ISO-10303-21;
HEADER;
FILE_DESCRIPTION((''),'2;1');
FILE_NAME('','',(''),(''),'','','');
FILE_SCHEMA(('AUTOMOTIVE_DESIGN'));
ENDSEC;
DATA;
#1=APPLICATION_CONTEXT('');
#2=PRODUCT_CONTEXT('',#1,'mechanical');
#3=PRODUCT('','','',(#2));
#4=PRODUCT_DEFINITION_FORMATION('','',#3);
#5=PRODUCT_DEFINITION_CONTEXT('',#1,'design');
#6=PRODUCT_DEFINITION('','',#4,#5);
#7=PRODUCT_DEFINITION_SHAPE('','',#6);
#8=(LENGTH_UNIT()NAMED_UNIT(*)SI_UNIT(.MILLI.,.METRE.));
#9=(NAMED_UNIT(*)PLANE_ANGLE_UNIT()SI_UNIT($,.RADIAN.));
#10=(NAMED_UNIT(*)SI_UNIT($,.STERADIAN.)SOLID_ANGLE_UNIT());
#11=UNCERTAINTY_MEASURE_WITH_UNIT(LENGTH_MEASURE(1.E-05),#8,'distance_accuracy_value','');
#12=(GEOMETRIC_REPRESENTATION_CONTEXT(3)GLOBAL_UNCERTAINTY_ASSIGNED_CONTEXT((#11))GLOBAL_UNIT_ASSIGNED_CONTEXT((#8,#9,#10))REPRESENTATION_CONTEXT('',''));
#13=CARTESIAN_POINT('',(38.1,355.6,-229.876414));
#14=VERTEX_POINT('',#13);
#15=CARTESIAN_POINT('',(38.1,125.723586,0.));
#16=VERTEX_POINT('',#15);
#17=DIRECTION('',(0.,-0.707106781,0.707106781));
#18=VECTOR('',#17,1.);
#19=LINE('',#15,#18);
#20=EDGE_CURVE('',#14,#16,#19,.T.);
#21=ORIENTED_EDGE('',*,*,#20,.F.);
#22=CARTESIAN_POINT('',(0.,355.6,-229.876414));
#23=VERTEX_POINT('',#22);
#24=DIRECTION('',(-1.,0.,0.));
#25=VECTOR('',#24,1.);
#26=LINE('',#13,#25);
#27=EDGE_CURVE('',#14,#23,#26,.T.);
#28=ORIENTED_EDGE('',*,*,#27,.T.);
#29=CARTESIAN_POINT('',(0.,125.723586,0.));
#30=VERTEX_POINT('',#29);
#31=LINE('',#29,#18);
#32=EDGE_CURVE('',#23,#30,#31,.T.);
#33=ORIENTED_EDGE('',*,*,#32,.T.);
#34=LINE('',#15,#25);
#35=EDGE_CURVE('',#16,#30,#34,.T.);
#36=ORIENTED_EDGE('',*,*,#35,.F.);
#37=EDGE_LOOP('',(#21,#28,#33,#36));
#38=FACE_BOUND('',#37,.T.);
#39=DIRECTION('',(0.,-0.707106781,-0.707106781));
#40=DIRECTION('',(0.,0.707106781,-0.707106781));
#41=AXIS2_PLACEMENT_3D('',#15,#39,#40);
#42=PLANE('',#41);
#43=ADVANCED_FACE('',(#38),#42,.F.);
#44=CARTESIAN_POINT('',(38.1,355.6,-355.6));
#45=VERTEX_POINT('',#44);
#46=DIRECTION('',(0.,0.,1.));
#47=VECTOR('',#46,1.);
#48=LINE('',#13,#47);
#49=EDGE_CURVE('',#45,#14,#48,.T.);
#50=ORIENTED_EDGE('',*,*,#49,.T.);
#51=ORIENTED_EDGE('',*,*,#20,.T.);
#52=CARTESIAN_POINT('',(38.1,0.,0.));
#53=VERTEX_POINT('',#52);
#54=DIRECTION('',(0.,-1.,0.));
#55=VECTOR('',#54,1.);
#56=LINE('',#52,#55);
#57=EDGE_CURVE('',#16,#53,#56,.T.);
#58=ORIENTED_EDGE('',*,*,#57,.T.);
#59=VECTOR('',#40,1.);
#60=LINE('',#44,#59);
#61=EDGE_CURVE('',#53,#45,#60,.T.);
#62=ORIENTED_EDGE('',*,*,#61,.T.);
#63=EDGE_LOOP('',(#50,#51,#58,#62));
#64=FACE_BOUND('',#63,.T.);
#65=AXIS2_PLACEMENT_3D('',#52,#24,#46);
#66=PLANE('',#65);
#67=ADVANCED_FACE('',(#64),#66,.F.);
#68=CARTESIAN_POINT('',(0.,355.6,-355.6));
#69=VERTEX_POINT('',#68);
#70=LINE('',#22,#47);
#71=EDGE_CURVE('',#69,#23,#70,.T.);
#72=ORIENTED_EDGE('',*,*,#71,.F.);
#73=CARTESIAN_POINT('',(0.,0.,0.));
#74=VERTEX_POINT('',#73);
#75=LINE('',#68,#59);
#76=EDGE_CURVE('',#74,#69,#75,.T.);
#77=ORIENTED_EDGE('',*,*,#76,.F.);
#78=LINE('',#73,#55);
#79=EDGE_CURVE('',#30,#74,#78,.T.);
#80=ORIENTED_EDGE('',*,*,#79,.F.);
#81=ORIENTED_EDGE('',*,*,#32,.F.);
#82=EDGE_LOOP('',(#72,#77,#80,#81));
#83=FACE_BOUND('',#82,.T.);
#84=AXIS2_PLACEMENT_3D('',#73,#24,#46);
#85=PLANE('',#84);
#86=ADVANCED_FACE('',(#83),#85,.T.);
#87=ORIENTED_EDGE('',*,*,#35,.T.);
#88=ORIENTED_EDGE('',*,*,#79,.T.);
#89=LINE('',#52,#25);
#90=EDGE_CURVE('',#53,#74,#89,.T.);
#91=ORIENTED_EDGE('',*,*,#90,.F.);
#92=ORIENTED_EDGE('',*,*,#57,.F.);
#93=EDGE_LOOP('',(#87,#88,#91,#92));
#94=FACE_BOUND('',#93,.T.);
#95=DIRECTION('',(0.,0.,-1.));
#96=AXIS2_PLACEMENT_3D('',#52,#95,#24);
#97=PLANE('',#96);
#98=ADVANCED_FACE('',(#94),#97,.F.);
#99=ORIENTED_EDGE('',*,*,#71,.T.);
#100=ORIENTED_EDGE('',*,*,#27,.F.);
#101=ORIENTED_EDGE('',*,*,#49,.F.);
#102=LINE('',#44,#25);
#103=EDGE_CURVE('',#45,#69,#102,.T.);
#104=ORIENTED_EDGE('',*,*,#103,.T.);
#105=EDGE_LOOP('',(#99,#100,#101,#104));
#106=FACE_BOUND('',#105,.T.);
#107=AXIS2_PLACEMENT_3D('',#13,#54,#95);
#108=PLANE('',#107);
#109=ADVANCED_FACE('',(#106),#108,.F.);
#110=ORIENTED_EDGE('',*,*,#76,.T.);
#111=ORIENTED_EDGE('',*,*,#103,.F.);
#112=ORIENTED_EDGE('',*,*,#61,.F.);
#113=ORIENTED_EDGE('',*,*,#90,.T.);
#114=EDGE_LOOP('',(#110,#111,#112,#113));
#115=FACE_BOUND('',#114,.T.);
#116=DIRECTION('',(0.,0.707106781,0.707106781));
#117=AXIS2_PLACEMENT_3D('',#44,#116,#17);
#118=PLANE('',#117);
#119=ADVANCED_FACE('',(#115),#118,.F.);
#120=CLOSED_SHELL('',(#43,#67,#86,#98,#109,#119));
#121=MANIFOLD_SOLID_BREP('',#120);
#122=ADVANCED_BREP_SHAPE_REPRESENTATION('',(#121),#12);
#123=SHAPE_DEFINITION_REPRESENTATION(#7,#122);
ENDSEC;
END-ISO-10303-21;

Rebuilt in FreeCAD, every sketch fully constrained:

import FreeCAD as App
import Part
import Sketcher
from FreeCAD import Vector
Q = App.Units.Quantity

doc = App.newDocument("Part")
body = doc.addObject("PartDesign::Body", "Body")

# Sketch on YZ plane
sketch1 = doc.addObject("Sketcher::SketchObject", "Sketch")
body.addObject(sketch1)
sketch1.AttachmentSupport = (doc.YZ_Plane, [""])
sketch1.MapMode = "FlatFace"
sketch1.addGeometry(Part.LineSegment(Vector(125.723586, 0, 0), Vector(0, 0, 0)), False)
sketch1.addGeometry(Part.LineSegment(Vector(0, 0, 0), Vector(355.6, -355.6, 0)), False)
sketch1.addGeometry(Part.LineSegment(Vector(355.6, -355.6, 0), Vector(355.6, -229.876414, 0)), False)
sketch1.addGeometry(Part.LineSegment(Vector(355.6, -229.876414, 0), Vector(125.723586, 0, 0)), False)
sketch1.addConstraint(Sketcher.Constraint("Coincident", 0, 2, 1, 1))
sketch1.addConstraint(Sketcher.Constraint("Coincident", 1, 2, 2, 1))
sketch1.addConstraint(Sketcher.Constraint("Coincident", 2, 2, 3, 1))
sketch1.addConstraint(Sketcher.Constraint("Coincident", 3, 2, 0, 1))
sketch1.addConstraint(Sketcher.Constraint("Horizontal", 0))
sketch1.addConstraint(Sketcher.Constraint("Vertical", 2))
sketch1.addConstraint(Sketcher.Constraint("Coincident", 0, 2, -1, 1))
sketch1.addConstraint(Sketcher.Constraint("Parallel", 1, 3))
sketch1.addConstraint(Sketcher.Constraint("Equal", 0, 2))
sketch1.addConstraint(Sketcher.Constraint("DistanceX", -1, 1, 1, 2, Q("14 in")))
sketch1.addConstraint(Sketcher.Constraint("DistanceX", 0, 2, 0, 1, 125.723586))
pad1 = doc.addObject("PartDesign::Pad", "Pad")
body.addObject(pad1)
pad1.Profile = sketch1
pad1.Length = Q("1.5 in")

doc.recompute()
